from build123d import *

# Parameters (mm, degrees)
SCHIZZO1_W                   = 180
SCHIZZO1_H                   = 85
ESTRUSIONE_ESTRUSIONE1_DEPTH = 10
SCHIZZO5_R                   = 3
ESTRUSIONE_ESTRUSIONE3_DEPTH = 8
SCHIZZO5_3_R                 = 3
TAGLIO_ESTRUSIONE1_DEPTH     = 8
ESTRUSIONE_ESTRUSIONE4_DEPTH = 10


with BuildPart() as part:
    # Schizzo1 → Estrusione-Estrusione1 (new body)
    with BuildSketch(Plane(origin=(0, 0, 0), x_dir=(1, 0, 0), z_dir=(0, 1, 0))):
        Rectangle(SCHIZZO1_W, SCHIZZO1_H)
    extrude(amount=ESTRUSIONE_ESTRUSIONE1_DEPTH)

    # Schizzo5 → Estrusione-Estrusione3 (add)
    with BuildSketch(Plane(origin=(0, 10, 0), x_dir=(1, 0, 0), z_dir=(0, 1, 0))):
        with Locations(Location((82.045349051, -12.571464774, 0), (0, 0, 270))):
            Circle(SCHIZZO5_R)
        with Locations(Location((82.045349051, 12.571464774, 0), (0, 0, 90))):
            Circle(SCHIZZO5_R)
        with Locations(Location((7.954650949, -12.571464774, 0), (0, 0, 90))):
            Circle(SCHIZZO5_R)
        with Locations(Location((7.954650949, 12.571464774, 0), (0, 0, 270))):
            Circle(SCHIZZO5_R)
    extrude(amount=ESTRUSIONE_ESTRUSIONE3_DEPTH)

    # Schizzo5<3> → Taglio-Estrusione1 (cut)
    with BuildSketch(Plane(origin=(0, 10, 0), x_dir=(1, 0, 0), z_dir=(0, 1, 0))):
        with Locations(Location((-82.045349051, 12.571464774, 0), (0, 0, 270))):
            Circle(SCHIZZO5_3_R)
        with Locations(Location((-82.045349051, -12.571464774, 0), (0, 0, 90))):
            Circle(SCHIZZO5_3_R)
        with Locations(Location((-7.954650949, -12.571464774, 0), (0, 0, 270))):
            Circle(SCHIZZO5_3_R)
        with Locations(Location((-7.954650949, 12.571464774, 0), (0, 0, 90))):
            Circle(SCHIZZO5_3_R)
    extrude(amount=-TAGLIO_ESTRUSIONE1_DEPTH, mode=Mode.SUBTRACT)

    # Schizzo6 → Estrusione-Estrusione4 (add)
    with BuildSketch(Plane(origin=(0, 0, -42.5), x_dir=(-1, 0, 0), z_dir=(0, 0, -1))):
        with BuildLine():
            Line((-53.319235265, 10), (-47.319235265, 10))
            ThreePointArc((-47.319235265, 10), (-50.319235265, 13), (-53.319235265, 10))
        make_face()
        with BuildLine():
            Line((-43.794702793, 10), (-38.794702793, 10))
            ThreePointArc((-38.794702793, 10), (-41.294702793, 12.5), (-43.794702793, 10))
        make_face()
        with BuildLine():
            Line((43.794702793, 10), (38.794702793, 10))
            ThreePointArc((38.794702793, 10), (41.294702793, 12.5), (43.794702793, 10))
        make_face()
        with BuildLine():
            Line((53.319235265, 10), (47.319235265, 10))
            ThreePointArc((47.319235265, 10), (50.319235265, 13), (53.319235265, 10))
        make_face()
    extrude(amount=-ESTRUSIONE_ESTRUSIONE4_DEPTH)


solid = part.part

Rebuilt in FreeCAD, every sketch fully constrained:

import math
import FreeCAD as App
import Part
import Sketcher

V = App.Vector

doc = App.newDocument("Part")
body = doc.addObject("PartDesign::Body", "Body")

# Sketch on XZ plane
sketch1 = doc.addObject("Sketcher::SketchObject", "Sketch")
body.addObject(sketch1)
sketch1.AttachmentSupport = (doc.XZ_Plane, [""])
sketch1.MapMode = "FlatFace"
sketch1.addGeometry(Part.LineSegment(V(-90, -42.5, 0), V(-90, 42.5, 0)), False)
sketch1.addGeometry(Part.LineSegment(V(-90, 42.5, 0), V(90, 42.5, 0)), False)
sketch1.addGeometry(Part.LineSegment(V(90, 42.5, 0), V(90, -42.5, 0)), False)
sketch1.addGeometry(Part.LineSegment(V(90, -42.5, 0), V(-90, -42.5, 0)), False)
sketch1.addConstraint(Sketcher.Constraint("Coincident", 0, 2, 1, 1))
sketch1.addConstraint(Sketcher.Constraint("Coincident", 1, 2, 2, 1))
sketch1.addConstraint(Sketcher.Constraint("Coincident", 2, 2, 3, 1))
sketch1.addConstraint(Sketcher.Constraint("Coincident", 3, 2, 0, 1))
sketch1.addConstraint(Sketcher.Constraint("Vertical", 0))
sketch1.addConstraint(Sketcher.Constraint("Horizontal", 1))
sketch1.addConstraint(Sketcher.Constraint("Vertical", 2))
sketch1.addConstraint(Sketcher.Constraint("Horizontal", 3))
sketch1.addConstraint(Sketcher.Constraint("Symmetric", 0, 2, 2, 2, -1, 1))
sketch1.addConstraint(Sketcher.Constraint("DistanceX", 1, 1, 1, 2, 180.0))
sketch1.addConstraint(Sketcher.Constraint("DistanceY", 0, 1, 0, 2, 85.0))
pad1 = doc.addObject("PartDesign::Pad", "Pad")
body.addObject(pad1)
pad1.Profile = sketch1
pad1.Length = 10
pad1.Reversed = True

# Sketch on XZ plane
sketch2 = doc.addObject("Sketcher::SketchObject", "Sketch001")
body.addObject(sketch2)
sketch2.AttachmentSupport = (doc.XZ_Plane, [""])
sketch2.MapMode = "FlatFace"
sketch2.AttachmentOffset = App.Placement(V(0, 0, -10), App.Rotation())
sketch2.addGeometry(Part.Circle(V(82.045349, 12.571465, 0), V(0, 0, 1), 3), False)
sketch2.addGeometry(Part.Circle(V(82.045349, -12.571465, 0), V(0, 0, 1), 3), False)
sketch2.addGeometry(Part.Circle(V(7.954651, 12.571465, 0), V(0, 0, 1), 3), False)
sketch2.addGeometry(Part.Circle(V(7.954651, -12.571465, 0), V(0, 0, 1), 3), False)
sketch2.addConstraint(Sketcher.Constraint("Equal", 0, 1))
sketch2.addConstraint(Sketcher.Constraint("Equal", 1, 2))
sketch2.addConstraint(Sketcher.Constraint("Equal", 2, 3))
sketch2.addConstraint(Sketcher.Constraint("Symmetric", 0, 3, 1, 3, -1))
sketch2.addConstraint(Sketcher.Constraint("Symmetric", 2, 3, 3, 3, -1))
sketch2.addConstraint(Sketcher.Constraint("Horizontal", 0, 3, 2, 3))
sketch2.addConstraint(Sketcher.Constraint("Diameter", 0, 6.0))
sketch2.addConstraint(Sketcher.Constraint("DistanceX", 2, 3, 0, 3, 74.090698))
sketch2.addConstraint(Sketcher.Constraint("DistanceX", -1, 1, 0, 3, 82.045349))
sketch2.addConstraint(Sketcher.Constraint("DistanceY", 1, 3, 0, 3, 25.14293))
pad2 = doc.addObject("PartDesign::Pad", "Pad001")
body.addObject(pad2)
pad2.Profile = sketch2
pad2.Length = 8
pad2.Reversed = True

# Sketch on XZ plane
sketch3 = doc.addObject("Sketcher::SketchObject", "Sketch002")
body.addObject(sketch3)
sketch3.AttachmentSupport = (doc.XZ_Plane, [""])
sketch3.MapMode = "FlatFace"
sketch3.AttachmentOffset = App.Placement(V(0, 0, -10), App.Rotation())
sketch3.addGeometry(Part.Circle(V(-82.045349, -12.571465, 0), V(0, 0, 1), 3), False)
sketch3.addGeometry(Part.Circle(V(-82.045349, 12.571465, 0), V(0, 0, 1), 3), False)
sketch3.addGeometry(Part.Circle(V(-7.954651, 12.571465, 0), V(0, 0, 1), 3), False)
sketch3.addGeometry(Part.Circle(V(-7.954651, -12.571465, 0), V(0, 0, 1), 3), False)
sketch3.addConstraint(Sketcher.Constraint("Equal", 0, 1))
sketch3.addConstraint(Sketcher.Constraint("Equal", 1, 2))
sketch3.addConstraint(Sketcher.Constraint("Equal", 2, 3))
sketch3.addConstraint(Sketcher.Constraint("Symmetric", 0, 3, 1, 3, -1))
sketch3.addConstraint(Sketcher.Constraint("Symmetric", 2, 3, 3, 3, -1))
sketch3.addConstraint(Sketcher.Constraint("Horizontal", 1, 3, 2, 3))
sketch3.addConstraint(Sketcher.Constraint("Diameter", 0, 6.0))
sketch3.addConstraint(Sketcher.Constraint("DistanceX", 1, 3, 2, 3, 74.090698))
sketch3.addConstraint(Sketcher.Constraint("DistanceX", 0, 3, -1, 1, 82.045349))
sketch3.addConstraint(Sketcher.Constraint("DistanceY", 0, 3, 1, 3, 25.14293))
pocket1 = doc.addObject("PartDesign::Pocket", "Pocket")
body.addObject(pocket1)
pocket1.Profile = sketch3
pocket1.Length = 8
pocket1.Reversed = True

# Sketch on XY plane
sketch4 = doc.addObject("Sketcher::SketchObject", "Sketch003")
body.addObject(sketch4)
sketch4.AttachmentSupport = (doc.XY_Plane, [""])
sketch4.MapMode = "FlatFace"
sketch4.AttachmentOffset = App.Placement(V(0, 0, -42.5), App.Rotation())
sketch4.addGeometry(Part.LineSegment(V(53.319235, 10, 0), V(47.319235, 10, 0)), False)
sketch4.addGeometry(Part.ArcOfCircle(Part.Circle(V(50.319235, 10, 0), V(0, 0, 1), 3), math.radians(0), math.radians(180)), False)
sketch4.addGeometry(Part.LineSegment(V(43.794703, 10, 0), V(38.794703, 10, 0)), False)
sketch4.addGeometry(Part.ArcOfCircle(Part.Circle(V(41.294703, 10, 0), V(0, 0, 1), 2.5), math.radians(0), math.radians(180)), False)
sketch4.addGeometry(Part.LineSegment(V(-38.794703, 10, 0), V(-43.794703, 10, 0)), False)
sketch4.addGeometry(Part.ArcOfCircle(Part.Circle(V(-41.294703, 10, 0), V(0, 0, 1), 2.5), math.radians(0), math.radians(180)), False)
sketch4.addGeometry(Part.LineSegment(V(-47.319235, 10, 0), V(-53.319235, 10, 0)), False)
sketch4.addGeometry(Part.ArcOfCircle(Part.Circle(V(-50.319235, 10, 0), V(0, 0, 1), 3), math.radians(0), math.radians(180)), False)
sketch4.addConstraint(Sketcher.Constraint("Coincident", 0, 1, 1, 1))
sketch4.addConstraint(Sketcher.Constraint("Coincident", 1, 2, 0, 2))
sketch4.addConstraint(Sketcher.Constraint("Coincident", 2, 1, 3, 1))
sketch4.addConstraint(Sketcher.Constraint("Coincident", 3, 2, 2, 2))
sketch4.addConstraint(Sketcher.Constraint("Coincident", 4, 1, 5, 1))
sketch4.addConstraint(Sketcher.Constraint("Coincident", 5, 2, 4, 2))
sketch4.addConstraint(Sketcher.Constraint("Coincident", 6, 1, 7, 1))
sketch4.addConstraint(Sketcher.Constraint("Coincident", 7, 2, 6, 2))
sketch4.addConstraint(Sketcher.Constraint("Horizontal", 0))
sketch4.addConstraint(Sketcher.Constraint("Horizontal", 2))
sketch4.addConstraint(Sketcher.Constraint("Horizontal", 4))
sketch4.addConstraint(Sketcher.Constraint("Horizontal", 6))
sketch4.addConstraint(Sketcher.Constraint("Equal", 3, 5))
sketch4.addConstraint(Sketcher.Constraint("Equal", 1, 7))
sketch4.addConstraint(Sketcher.Constraint("Symmetric", 3, 3, 5, 3, -2))
sketch4.addConstraint(Sketcher.Constraint("Symmetric", 1, 3, 7, 3, -2))
sketch4.addConstraint(Sketcher.Constraint("Horizontal", 1, 3, 3, 3))
sketch4.addConstraint(Sketcher.Constraint("Horizontal", 7, 3, 0, 1))
sketch4.addConstraint(Sketcher.Constraint("Horizontal", 1, 2, 2, 1))
sketch4.addConstraint(Sketcher.Constraint("Horizontal", 3, 2, 4, 1))
sketch4.addConstraint(Sketcher.Constraint("Horizontal", 5, 2, 6, 1))
sketch4.addConstraint(Sketcher.Constraint("Radius", 1, 3.0))
sketch4.addConstraint(Sketcher.Constraint("Radius", 3, 2.5))
sketch4.addConstraint(Sketcher.Constraint("DistanceY", -1, 1, 1, 3, 10.0))
sketch4.addConstraint(Sketcher.Constraint("DistanceX", 5, 3, 1, 3, 91.613938))
sketch4.addConstraint(Sketcher.Constraint("DistanceX", 7, 3, 1, 3, 100.638471))
pad3 = doc.addObject("PartDesign::Pad", "Pad002")
body.addObject(pad3)
pad3.Profile = sketch4
pad3.Length = 10

doc.recompute()
